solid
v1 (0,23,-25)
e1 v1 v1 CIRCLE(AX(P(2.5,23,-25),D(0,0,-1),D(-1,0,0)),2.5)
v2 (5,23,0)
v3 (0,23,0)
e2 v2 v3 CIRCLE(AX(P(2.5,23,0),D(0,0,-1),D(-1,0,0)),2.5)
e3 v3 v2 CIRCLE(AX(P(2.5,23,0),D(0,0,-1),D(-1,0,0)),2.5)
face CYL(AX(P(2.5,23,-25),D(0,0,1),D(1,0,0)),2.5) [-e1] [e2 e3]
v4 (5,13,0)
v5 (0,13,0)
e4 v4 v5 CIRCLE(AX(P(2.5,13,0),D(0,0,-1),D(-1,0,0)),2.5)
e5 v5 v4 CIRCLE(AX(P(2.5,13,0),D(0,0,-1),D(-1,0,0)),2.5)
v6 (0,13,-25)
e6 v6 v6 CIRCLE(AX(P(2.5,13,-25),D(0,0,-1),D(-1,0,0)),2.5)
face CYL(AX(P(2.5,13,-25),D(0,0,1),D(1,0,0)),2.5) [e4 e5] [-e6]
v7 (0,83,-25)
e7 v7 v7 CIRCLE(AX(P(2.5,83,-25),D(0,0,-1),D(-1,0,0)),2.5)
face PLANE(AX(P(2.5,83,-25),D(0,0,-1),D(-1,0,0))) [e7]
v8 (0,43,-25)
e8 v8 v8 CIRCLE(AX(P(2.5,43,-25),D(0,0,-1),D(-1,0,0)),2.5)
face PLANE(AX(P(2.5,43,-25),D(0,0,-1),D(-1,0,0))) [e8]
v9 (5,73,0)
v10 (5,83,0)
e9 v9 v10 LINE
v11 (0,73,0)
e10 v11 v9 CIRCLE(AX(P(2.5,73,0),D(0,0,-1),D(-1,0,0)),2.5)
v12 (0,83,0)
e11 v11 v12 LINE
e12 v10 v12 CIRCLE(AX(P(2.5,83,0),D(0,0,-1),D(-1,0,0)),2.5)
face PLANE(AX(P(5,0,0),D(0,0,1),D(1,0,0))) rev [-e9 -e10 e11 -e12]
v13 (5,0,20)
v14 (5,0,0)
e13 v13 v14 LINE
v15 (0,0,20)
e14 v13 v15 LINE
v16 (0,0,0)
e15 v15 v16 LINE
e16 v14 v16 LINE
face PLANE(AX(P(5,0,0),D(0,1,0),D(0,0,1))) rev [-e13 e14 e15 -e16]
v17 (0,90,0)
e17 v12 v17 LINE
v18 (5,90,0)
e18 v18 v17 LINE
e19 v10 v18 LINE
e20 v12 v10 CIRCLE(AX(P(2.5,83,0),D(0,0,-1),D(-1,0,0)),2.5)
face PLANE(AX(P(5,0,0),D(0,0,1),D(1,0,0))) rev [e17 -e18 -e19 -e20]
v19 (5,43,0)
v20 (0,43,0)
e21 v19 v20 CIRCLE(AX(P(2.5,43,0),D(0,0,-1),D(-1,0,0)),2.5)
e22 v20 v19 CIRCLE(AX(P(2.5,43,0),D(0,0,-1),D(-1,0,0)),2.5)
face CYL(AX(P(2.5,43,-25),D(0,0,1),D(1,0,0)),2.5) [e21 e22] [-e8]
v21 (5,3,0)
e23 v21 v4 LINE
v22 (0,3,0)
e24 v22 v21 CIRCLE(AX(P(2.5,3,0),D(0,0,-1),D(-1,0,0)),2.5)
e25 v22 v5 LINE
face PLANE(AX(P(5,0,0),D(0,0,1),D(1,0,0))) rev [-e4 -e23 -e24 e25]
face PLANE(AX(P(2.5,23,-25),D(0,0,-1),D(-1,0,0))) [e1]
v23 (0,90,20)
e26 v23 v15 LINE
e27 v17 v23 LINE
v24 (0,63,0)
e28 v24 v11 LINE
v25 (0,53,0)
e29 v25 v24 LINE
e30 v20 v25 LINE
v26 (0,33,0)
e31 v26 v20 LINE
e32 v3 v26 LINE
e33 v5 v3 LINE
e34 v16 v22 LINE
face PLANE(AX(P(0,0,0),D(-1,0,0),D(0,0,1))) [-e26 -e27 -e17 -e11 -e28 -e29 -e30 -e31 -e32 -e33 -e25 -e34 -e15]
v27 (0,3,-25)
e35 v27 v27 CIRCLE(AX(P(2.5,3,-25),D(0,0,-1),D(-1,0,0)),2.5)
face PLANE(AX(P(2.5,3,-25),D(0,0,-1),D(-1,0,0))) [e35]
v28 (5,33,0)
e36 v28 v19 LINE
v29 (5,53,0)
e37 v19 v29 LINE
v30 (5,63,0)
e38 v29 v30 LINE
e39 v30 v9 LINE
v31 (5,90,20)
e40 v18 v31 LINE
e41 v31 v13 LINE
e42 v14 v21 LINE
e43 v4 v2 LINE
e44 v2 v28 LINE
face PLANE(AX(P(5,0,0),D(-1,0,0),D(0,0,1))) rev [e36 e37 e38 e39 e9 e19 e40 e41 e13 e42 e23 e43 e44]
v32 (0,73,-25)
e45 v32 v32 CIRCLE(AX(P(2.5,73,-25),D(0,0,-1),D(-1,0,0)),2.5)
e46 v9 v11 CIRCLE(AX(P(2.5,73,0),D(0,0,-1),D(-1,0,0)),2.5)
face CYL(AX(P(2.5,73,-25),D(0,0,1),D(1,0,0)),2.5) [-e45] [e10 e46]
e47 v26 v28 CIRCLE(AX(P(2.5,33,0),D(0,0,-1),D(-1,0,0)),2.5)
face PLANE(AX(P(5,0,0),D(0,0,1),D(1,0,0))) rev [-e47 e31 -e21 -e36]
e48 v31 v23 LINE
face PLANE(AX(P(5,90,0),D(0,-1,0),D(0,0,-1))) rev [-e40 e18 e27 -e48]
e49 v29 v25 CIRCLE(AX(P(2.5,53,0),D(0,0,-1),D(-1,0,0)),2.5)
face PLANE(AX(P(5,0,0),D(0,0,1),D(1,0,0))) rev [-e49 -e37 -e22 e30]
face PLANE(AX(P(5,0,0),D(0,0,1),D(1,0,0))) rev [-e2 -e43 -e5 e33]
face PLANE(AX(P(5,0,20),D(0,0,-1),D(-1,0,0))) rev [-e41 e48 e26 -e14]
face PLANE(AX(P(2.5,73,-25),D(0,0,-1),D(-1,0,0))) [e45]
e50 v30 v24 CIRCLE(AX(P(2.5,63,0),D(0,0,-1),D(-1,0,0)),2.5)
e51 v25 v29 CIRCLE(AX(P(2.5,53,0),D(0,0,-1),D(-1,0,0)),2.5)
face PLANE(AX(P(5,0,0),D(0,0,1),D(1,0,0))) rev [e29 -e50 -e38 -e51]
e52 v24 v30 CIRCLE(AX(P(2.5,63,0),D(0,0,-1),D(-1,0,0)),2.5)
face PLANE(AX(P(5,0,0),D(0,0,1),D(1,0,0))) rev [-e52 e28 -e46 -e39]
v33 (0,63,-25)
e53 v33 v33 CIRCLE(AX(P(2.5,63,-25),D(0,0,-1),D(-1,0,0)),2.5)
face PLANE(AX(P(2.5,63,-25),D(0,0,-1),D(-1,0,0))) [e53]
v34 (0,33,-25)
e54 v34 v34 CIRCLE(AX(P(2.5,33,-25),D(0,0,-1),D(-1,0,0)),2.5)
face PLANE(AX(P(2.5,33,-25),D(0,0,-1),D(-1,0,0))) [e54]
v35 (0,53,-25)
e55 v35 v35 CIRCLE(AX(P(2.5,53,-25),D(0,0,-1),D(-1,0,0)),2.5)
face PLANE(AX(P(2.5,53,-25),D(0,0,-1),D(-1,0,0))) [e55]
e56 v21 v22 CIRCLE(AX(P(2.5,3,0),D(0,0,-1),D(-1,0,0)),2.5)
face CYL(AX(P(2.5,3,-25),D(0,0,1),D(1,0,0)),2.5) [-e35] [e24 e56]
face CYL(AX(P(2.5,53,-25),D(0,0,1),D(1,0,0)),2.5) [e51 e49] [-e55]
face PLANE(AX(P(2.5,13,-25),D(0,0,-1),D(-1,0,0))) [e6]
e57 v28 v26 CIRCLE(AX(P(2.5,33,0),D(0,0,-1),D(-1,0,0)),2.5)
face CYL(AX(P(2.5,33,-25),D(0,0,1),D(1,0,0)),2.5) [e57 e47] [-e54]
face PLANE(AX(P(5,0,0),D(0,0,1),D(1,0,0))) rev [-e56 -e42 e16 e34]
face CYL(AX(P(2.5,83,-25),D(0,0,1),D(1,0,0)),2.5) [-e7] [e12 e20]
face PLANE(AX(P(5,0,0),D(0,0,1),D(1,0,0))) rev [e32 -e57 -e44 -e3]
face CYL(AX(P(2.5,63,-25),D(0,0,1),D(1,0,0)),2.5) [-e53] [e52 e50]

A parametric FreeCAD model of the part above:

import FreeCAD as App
import Part
import Sketcher
from FreeCAD import Vector
Q = App.Units.Quantity

doc = App.newDocument("Part")
body = doc.addObject("PartDesign::Body", "Body")

# Sketch on YZ plane
sketch1 = doc.addObject("Sketcher::SketchObject", "Sketch")
body.addObject(sketch1)
sketch1.AttachmentSupport = (doc.YZ_Plane, [""])
sketch1.MapMode = "FlatFace"
sketch1.addGeometry([
    Part.LineSegment(Vector(0, 20, 0), Vector(0, 0, 0)),
    Part.LineSegment(Vector(0, 0, 0), Vector(90, 0, 0)),
    Part.LineSegment(Vector(90, 0, 0), Vector(90, 20, 0)),
    Part.LineSegment(Vector(90, 20, 0), Vector(0, 20, 0)),
], False)
sketch1.addConstraint([
    Sketcher.Constraint("Coincident", 0, 2, 1, 1),
    Sketcher.Constraint("Coincident", 1, 2, 2, 1),
    Sketcher.Constraint("Coincident", 2, 2, 3, 1),
    Sketcher.Constraint("Coincident", 3, 2, 0, 1),
    Sketcher.Constraint("Vertical", 0),
    Sketcher.Constraint("Horizontal", 1),
    Sketcher.Constraint("Vertical", 2),
    Sketcher.Constraint("Horizontal", 3),
    Sketcher.Constraint("Coincident", 0, 2, -1, 1),
    Sketcher.Constraint("DistanceX", 1, 1, 1, 2, Q("90 mm")),
    Sketcher.Constraint("DistanceY", 0, 2, 0, 1, Q("20 mm")),
])
pad1 = doc.addObject("PartDesign::Pad", "Pad")
body.addObject(pad1)
pad1.Profile = sketch1
pad1.Length = 5

# Sketch on XY plane
sketch2 = doc.addObject("Sketcher::SketchObject", "Sketch001")
body.addObject(sketch2)
sketch2.AttachmentSupport = (doc.XY_Plane, [""])
sketch2.MapMode = "FlatFace"
sketch2.addGeometry([
    Part.Circle(Vector(2.5, 3, 0), Vector(0, 0, 1), 2.5),  # 0
    Part.Circle(Vector(2.5, 13, 0), Vector(0, 0, 1), 2.5),  # 1
    Part.Circle(Vector(2.5, 23, 0), Vector(0, 0, 1), 2.5),  # 2
    Part.Circle(Vector(2.5, 33, 0), Vector(0, 0, 1), 2.5),  # 3
    Part.Circle(Vector(2.5, 43, 0), Vector(0, 0, 1), 2.5),  # 4
    Part.Circle(Vector(2.5, 53, 0), Vector(0, 0, 1), 2.5),  # 5
    Part.Circle(Vector(2.5, 63, 0), Vector(0, 0, 1), 2.5),  # 6
    Part.Circle(Vector(2.5, 73, 0), Vector(0, 0, 1), 2.5),  # 7
    Part.Circle(Vector(2.5, 83, 0), Vector(0, 0, 1), 2.5),  # 8
], False)
sketch2.addConstraint([
    Sketcher.Constraint("Equal", 0, 1),
    Sketcher.Constraint("Equal", 1, 2),
    Sketcher.Constraint("Equal", 2, 3),
    Sketcher.Constraint("Equal", 3, 4),
    Sketcher.Constraint("Equal", 4, 5),
    Sketcher.Constraint("Equal", 5, 6),
    Sketcher.Constraint("Equal", 6, 7),
    Sketcher.Constraint("Equal", 7, 8),
    Sketcher.Constraint("Vertical", 0, 3, 1, 3),
    Sketcher.Constraint("Vertical", 1, 3, 2, 3),
    Sketcher.Constraint("Vertical", 2, 3, 3, 3),
    Sketcher.Constraint("Vertical", 3, 3, 4, 3),
    Sketcher.Constraint("Vertical", 4, 3, 5, 3),
    Sketcher.Constraint("Vertical", 5, 3, 6, 3),
    Sketcher.Constraint("Vertical", 6, 3, 7, 3),
    Sketcher.Constraint("Vertical", 7, 3, 8, 3),
    Sketcher.Constraint("Diameter", 0, Q("5 mm")),
    Sketcher.Constraint("DistanceY", -1, 1, 0, 3, Q("3 mm")),
    Sketcher.Constraint("DistanceY", -1, 1, 1, 3, Q("13 mm")),
    Sketcher.Constraint("DistanceY", -1, 1, 2, 3, Q("23 mm")),
    Sketcher.Constraint("DistanceY", -1, 1, 3, 3, Q("33 mm")),
    Sketcher.Constraint("DistanceY", -1, 1, 4, 3, Q("43 mm")),
    Sketcher.Constraint("DistanceY", -1, 1, 5, 3, Q("53 mm")),
    Sketcher.Constraint("DistanceY", -1, 1, 6, 3, Q("63 mm")),
    Sketcher.Constraint("DistanceY", -1, 1, 7, 3, Q("73 mm")),
    Sketcher.Constraint("DistanceY", -1, 1, 8, 3, Q("83 mm")),
    Sketcher.Constraint("DistanceX", -1, 1, 0, 3, Q("2.5 mm")),
])
pad2 = doc.addObject("PartDesign::Pad", "Pad001")
body.addObject(pad2)
pad2.Profile = sketch2
pad2.Length = 25
pad2.Reversed = True

doc.recompute()
